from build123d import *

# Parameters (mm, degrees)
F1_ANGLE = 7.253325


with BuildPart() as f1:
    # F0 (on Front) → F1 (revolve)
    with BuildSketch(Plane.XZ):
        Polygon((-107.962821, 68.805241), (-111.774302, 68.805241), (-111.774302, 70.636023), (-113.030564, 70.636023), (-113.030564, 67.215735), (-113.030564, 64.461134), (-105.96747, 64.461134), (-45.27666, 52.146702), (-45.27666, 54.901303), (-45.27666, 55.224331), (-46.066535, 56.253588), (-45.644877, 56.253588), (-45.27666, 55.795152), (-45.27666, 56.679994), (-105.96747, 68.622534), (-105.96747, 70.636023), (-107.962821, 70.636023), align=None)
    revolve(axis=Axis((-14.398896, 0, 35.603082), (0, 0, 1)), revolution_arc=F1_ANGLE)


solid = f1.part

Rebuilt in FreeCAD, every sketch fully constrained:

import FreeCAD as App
import Part
import Sketcher

V = App.Vector


def add_polygon(sketch, points):
    """Adds a closed chain of lines whose ends are joined by coincident constraints."""
    first, n = sketch.GeometryCount, len(points)
    for a, b in zip(points, points[1:] + points[:1]):
        sketch.addGeometry(Part.LineSegment(App.Vector(*a, 0), App.Vector(*b, 0)), False)
    for i in range(n):
        sketch.addConstraint(Sketcher.Constraint("Coincident", first + i, 2, first + (i + 1) % n, 1))

doc = App.newDocument("Part")
body = doc.addObject("PartDesign::Body", "Body")

sketch1 = doc.addObject("Sketcher::SketchObject", "Sketch")
body.addObject(sketch1)
sketch1.AttachmentSupport = (doc.XZ_Plane, [""])
sketch1.MapMode = "FlatFace"
add_polygon(sketch1, [(-107.96, 68.81), (-111.77, 68.81), (-111.77, 70.64), (-113.03, 70.64), (-113.03, 64.46), (-105.97, 64.46), (-45.28, 52.15), (-45.28, 55.22), (-46.07, 56.25), (-45.64, 56.25), (-45.28, 55.8), (-45.28, 56.68), (-105.97, 68.62), (-105.97, 70.64), (-107.96, 70.64)])
sketch1.addGeometry(Part.LineSegment(V(-14.4, 52.15, 0), V(-14.4, 70.64, 0)), True)
sketch1.addConstraint([
    Sketcher.Constraint("Horizontal", 0),
    Sketcher.Constraint("Vertical", 1),
    Sketcher.Constraint("Horizontal", 2),
    Sketcher.Constraint("Vertical", 3),
    Sketcher.Constraint("Horizontal", 4),
    Sketcher.Constraint("Vertical", 6),
    Sketcher.Constraint("Horizontal", 8),
    Sketcher.Constraint("Vertical", 10),
    Sketcher.Constraint("Vertical", 12),
    Sketcher.Constraint("Horizontal", 13),
    Sketcher.Constraint("Vertical", 14),
    Sketcher.Constraint("Vertical", 15),
    Sketcher.Constraint("Horizontal", 2, 2, 12, 2),
    Sketcher.Constraint("Horizontal", 5, 2, 15, 1),
    Sketcher.Constraint("Horizontal", 13, 2, 15, 2),
    Sketcher.Constraint("Vertical", 6, 2, 9, 2),
    Sketcher.Constraint("Vertical", 4, 2, 11, 2),
    Sketcher.Constraint("DistanceX", 0, 2, 0, 1, 3.811481),
    Sketcher.Constraint("DistanceX", 2, 2, 2, 1, 1.256262),
    Sketcher.Constraint("DistanceX", 8, 1, 8, 2, 0.421658),
    Sketcher.Constraint("DistanceX", 13, 2, 13, 1, 1.995351),
    Sketcher.Constraint("DistanceY", 1, 1, 1, 2, 1.830782),
    Sketcher.Constraint("DistanceY", 3, 2, 3, 1, 6.174889),
    Sketcher.Constraint("DistanceY", 6, 1, 6, 2, 3.077629),
    Sketcher.Constraint("DistanceY", 10, 1, 10, 2, 0.884842),
    Sketcher.Constraint("DistanceY", 12, 1, 12, 2, 2.013489),
    Sketcher.Constraint("DistanceY", 15, 1, 15, 2, 18.489321),
    Sketcher.Constraint("DistanceY", -1, 1, 5, 2, 52.146702),
    Sketcher.Constraint("Distance", 7, 1.29741),
    Sketcher.Constraint("DistanceX", 4, 2, -1, 1, 105.96747),
    Sketcher.Constraint("DistanceX", 5, 2, -1, 1, 45.27666),
    Sketcher.Constraint("DistanceY", 6, 2, 9, 2, 0.570821),
    Sketcher.Constraint("DistanceX", 8, 2, 15, 1, 31.245981),
    Sketcher.Constraint("Distance", 9, 0.588003),
])
revolution = doc.addObject("PartDesign::Revolution", "Revolution")
body.addObject(revolution)
revolution.Profile = sketch1
revolution.ReferenceAxis = (sketch1, ["Axis0"])
revolution.Angle = 7.253325

doc.recompute()
